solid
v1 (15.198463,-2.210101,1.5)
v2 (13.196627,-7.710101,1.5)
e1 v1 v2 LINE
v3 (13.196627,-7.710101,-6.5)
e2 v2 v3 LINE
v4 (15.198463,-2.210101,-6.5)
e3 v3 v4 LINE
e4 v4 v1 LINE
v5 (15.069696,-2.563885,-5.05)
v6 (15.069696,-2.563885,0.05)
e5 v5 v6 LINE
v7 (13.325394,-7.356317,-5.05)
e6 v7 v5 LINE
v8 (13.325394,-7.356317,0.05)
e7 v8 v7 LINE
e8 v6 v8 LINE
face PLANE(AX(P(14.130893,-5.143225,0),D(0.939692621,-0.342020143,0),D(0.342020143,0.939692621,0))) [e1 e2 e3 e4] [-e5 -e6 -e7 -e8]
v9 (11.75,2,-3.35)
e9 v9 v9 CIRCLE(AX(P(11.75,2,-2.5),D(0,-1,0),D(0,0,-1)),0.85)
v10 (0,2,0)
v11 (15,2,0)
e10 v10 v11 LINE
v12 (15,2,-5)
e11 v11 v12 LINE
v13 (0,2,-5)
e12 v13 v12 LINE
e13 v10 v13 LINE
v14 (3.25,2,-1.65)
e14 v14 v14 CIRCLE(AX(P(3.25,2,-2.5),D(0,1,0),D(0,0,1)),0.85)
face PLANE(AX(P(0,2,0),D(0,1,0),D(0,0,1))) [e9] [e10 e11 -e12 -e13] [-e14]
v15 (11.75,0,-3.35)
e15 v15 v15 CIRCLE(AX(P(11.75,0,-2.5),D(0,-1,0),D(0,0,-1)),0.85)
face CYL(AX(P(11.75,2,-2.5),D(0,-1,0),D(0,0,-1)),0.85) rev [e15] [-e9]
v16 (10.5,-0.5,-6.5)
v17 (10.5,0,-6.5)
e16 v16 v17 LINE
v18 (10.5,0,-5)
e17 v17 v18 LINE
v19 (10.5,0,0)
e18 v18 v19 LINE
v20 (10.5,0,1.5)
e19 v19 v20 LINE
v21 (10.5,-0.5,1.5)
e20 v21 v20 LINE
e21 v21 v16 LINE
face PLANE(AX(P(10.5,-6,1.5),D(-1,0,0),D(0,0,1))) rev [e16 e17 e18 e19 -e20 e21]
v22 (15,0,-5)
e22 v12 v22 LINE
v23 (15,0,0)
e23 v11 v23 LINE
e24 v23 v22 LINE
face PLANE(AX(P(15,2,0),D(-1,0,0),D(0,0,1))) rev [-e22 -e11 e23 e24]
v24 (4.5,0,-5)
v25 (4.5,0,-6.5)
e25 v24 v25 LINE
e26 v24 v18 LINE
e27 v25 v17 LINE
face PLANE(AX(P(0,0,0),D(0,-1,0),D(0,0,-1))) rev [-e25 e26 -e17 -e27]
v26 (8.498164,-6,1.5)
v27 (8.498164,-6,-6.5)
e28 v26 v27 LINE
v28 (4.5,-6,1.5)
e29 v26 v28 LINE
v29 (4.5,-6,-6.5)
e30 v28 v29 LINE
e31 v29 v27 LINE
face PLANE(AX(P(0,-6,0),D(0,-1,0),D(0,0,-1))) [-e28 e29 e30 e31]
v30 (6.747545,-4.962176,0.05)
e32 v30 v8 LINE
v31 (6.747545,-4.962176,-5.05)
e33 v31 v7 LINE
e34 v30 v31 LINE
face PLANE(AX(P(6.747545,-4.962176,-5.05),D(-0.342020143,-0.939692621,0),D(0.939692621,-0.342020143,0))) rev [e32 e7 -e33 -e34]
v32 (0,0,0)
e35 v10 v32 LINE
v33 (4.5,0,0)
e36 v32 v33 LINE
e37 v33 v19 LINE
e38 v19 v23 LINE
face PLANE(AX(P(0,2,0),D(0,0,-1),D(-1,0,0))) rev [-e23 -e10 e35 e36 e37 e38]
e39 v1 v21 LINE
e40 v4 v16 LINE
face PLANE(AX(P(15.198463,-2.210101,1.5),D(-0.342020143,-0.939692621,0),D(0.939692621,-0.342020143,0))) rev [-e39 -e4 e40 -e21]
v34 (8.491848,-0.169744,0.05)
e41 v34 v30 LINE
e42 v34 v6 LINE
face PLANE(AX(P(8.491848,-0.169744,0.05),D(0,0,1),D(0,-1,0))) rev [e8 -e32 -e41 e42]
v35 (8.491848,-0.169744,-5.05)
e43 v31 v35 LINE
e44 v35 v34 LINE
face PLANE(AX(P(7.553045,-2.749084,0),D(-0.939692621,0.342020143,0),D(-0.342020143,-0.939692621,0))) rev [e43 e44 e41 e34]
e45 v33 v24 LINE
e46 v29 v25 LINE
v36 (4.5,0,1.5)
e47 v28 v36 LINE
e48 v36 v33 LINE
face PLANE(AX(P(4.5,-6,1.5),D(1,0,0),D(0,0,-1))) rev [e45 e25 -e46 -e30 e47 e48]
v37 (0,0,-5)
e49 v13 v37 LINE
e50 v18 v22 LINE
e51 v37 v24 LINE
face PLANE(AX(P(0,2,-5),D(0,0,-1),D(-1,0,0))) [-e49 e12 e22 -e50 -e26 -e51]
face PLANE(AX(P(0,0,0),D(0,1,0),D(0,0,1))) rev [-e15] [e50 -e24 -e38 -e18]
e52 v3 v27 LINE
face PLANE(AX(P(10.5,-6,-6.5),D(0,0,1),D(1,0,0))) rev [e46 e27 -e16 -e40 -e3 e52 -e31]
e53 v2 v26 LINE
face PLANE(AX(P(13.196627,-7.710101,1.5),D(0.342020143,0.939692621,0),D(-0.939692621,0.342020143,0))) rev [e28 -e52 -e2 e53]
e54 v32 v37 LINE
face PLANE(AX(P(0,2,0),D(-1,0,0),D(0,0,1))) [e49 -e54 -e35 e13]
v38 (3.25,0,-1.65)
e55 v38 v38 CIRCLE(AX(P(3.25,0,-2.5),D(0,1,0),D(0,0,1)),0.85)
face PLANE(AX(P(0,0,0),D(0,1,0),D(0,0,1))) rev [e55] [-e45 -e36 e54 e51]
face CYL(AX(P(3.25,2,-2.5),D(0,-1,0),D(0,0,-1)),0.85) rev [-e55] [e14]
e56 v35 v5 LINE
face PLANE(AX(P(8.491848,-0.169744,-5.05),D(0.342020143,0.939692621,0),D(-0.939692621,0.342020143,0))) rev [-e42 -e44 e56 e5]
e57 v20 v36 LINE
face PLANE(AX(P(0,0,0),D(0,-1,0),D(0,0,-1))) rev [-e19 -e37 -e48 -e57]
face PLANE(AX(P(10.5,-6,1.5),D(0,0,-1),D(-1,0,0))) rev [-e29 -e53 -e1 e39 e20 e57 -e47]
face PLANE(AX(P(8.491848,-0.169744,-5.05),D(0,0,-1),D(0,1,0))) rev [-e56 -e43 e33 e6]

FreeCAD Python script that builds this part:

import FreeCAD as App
import Part
import Sketcher
Q = App.Units.Quantity


def add_polygon(sketch, points):
    """Adds a closed chain of lines whose ends are joined by coincident constraints."""
    first, n = sketch.GeometryCount, len(points)
    for a, b in zip(points, points[1:] + points[:1]):
        sketch.addGeometry(Part.LineSegment(App.Vector(*a, 0), App.Vector(*b, 0)), False)
    for i in range(n):
        sketch.addConstraint(Sketcher.Constraint("Coincident", first + i, 2, first + (i + 1) % n, 1))

doc = App.newDocument("Part")
body = doc.addObject("PartDesign::Body", "Body")

sketch1 = doc.addObject("Sketcher::SketchObject", "Sketch")
body.addObject(sketch1)
sketch1.AttachmentSupport = (doc.XZ_Plane, [""])
sketch1.MapMode = "FlatFace"
add_polygon(sketch1, [(0, -5), (0, 0), (15, 0), (15, -5)])
sketch1.addGeometry(Part.Circle(App.Vector(3.2, -2.5, 0), App.Vector(0, 0, 1), 0.8), False)
sketch1.addGeometry(Part.Circle(App.Vector(11.8, -2.5, 0), App.Vector(0, 0, 1), 0.8), False)
sketch1.addConstraint(Sketcher.Constraint("Vertical", 0))
sketch1.addConstraint(Sketcher.Constraint("Horizontal", 1))
sketch1.addConstraint(Sketcher.Constraint("Vertical", 2))
sketch1.addConstraint(Sketcher.Constraint("Horizontal", 3))
sketch1.addConstraint(Sketcher.Constraint("Coincident", 0, 2, -1, 1))
sketch1.addConstraint(Sketcher.Constraint("Equal", 4, 5))
sketch1.addConstraint(Sketcher.Constraint("Horizontal", 4, 3, 5, 3))
sketch1.addConstraint(Sketcher.Constraint("Diameter", 4, Q("1.7 mm")))
sketch1.addConstraint(Sketcher.Constraint("DistanceX", 1, 1, 1, 2, Q("15 mm")))
sketch1.addConstraint(Sketcher.Constraint("DistanceY", 0, 1, 0, 2, Q("5 mm")))
sketch1.addConstraint(Sketcher.Constraint("DistanceY", 4, 3, -1, 1, Q("2.5 mm")))
sketch1.addConstraint(Sketcher.Constraint("DistanceX", 4, 3, 5, 3, Q("8.5 mm")))
sketch1.addConstraint(Sketcher.Constraint("DistanceX", -1, 1, 4, 3, Q("3.25 mm")))
pad1 = doc.addObject("PartDesign::Pad", "Pad")
body.addObject(pad1)
pad1.Profile = sketch1
pad1.Length = 2
pad1.Reversed = True

sketch2 = doc.addObject("Sketcher::SketchObject", "Sketch001")
body.addObject(sketch2)
sketch2.AttachmentSupport = (doc.XZ_Plane, [""])
sketch2.MapMode = "FlatFace"
add_polygon(sketch2, [(4, 2), (4, -6), (10, -6), (10, 2)])
sketch2.addConstraint(Sketcher.Constraint("Vertical", 0))
sketch2.addConstraint(Sketcher.Constraint("Horizontal", 1))
sketch2.addConstraint(Sketcher.Constraint("Vertical", 2))
sketch2.addConstraint(Sketcher.Constraint("Horizontal", 3))
sketch2.addConstraint(Sketcher.Constraint("DistanceX", 1, 1, 1, 2, Q("6 mm")))
sketch2.addConstraint(Sketcher.Constraint("DistanceY", 0, 2, 0, 1, Q("8 mm")))
sketch2.addConstraint(Sketcher.Constraint("DistanceX", -1, 1, 0, 2, Q("4.5 mm")))
sketch2.addConstraint(Sketcher.Constraint("DistanceY", 0, 2, -1, 1, Q("6.5 mm")))
pad2 = doc.addObject("PartDesign::Pad", "Pad001")
body.addObject(pad2)
pad2.Profile = sketch2
pad2.Length = 6

sketch3 = doc.addObject("Sketcher::SketchObject", "Sketch002")
body.addObject(sketch3)
sketch3.AttachmentSupport = (doc.XY_Plane, [""])
sketch3.MapMode = "FlatFace"
sketch3.AttachmentOffset = App.Placement(App.Vector(0, 0, -6.5), App.Rotation())
add_polygon(sketch3, [(10.5, -0.5), (10.5, -6), (8.5, -6)])
sketch3.addConstraint(Sketcher.Constraint("Vertical", 0))
sketch3.addConstraint(Sketcher.Constraint("Horizontal", 1))
sketch3.addConstraint(Sketcher.Constraint("Angle", 2, Q("70 deg")))
sketch3.addConstraint(Sketcher.Constraint("DistanceY", 0, 2, 0, 1, Q("5.5 mm")))
sketch3.addConstraint(Sketcher.Constraint("DistanceY", 0, 2, -1, 1, Q("6 mm")))
sketch3.addConstraint(Sketcher.Constraint("DistanceX", -1, 1, 0, 2, Q("10.5 mm")))
pocket1 = doc.addObject("PartDesign::Pocket", "Pocket")
body.addObject(pocket1)
pocket1.Profile = sketch3
pocket1.Length = 8
pocket1.Reversed = True

sketch4 = doc.addObject("Sketcher::SketchObject", "Sketch003")
body.addObject(sketch4)
sketch4.Placement = App.Placement(App.Vector(9.43243, -3.433124, 0), App.Rotation(App.Vector(0, 0, -1), App.Vector(0.342020143, 0.939692621, 0), App.Vector(0.939692621, -0.342020143, 0), "ZXY"))
add_polygon(sketch4, [(0, 3), (0, -2), (5, -2), (5, 3)])
sketch4.addConstraint(Sketcher.Constraint("Vertical", 0))
sketch4.addConstraint(Sketcher.Constraint("Horizontal", 1))
sketch4.addConstraint(Sketcher.Constraint("Vertical", 2))
sketch4.addConstraint(Sketcher.Constraint("Horizontal", 3))
sketch4.addConstraint(Sketcher.Constraint("Equal", 3, 0))
sketch4.addConstraint(Sketcher.Constraint("DistanceX", 1, 1, 1, 2, Q("5.1 mm")))
sketch4.addConstraint(Sketcher.Constraint("DistanceX", 0, 2, -1, 1, Q("0.05 mm")))
sketch4.addConstraint(Sketcher.Constraint("DistanceY", 0, 2, -1, 1, Q("2.355124 mm")))
pocket2 = doc.addObject("PartDesign::Pocket", "Pocket001")
body.addObject(pocket2)
pocket2.Profile = sketch4
pocket2.Length = 2

sketch5 = doc.addObject("Sketcher::SketchObject", "Sketch004")
body.addObject(sketch5)
sketch5.Placement = App.Placement(App.Vector(9.43243, -3.433124, 0), App.Rotation(App.Vector(0, 0, -1), App.Vector(0.342020143, 0.939692621, 0), App.Vector(0.939692621, -0.342020143, 0), "ZXY"))
add_polygon(sketch5, [(-2, 3), (-2, -3), (6, -3), (6, 3)])
add_polygon(sketch5, [(5, -2), (0, -2), (0, 3), (5, 3)])
sketch5.addConstraint(Sketcher.Constraint("Vertical", 0))
sketch5.addConstraint(Sketcher.Constraint("Horizontal", 1))
sketch5.addConstraint(Sketcher.Constraint("Vertical", 2))
sketch5.addConstraint(Sketcher.Constraint("Horizontal", 3))
sketch5.addConstraint(Sketcher.Constraint("Horizontal", 4))
sketch5.addConstraint(Sketcher.Constraint("Vertical", 5))
sketch5.addConstraint(Sketcher.Constraint("Horizontal", 6))
sketch5.addConstraint(Sketcher.Constraint("Vertical", 7))
sketch5.addConstraint(Sketcher.Constraint("Equal", 6, 5))
sketch5.addConstraint(Sketcher.Constraint("DistanceX", 1, 1, 1, 2, Q("8 mm")))
sketch5.addConstraint(Sketcher.Constraint("DistanceX", 4, 2, 4, 1, Q("5.1 mm")))
sketch5.addConstraint(Sketcher.Constraint("DistanceX", 0, 2, -1, 1, Q("1.5 mm")))
sketch5.addConstraint(Sketcher.Constraint("DistanceX", 4, 2, -1, 1, Q("0.05 mm")))
sketch5.addConstraint(Sketcher.Constraint("DistanceY", 0, 2, 0, 1, Q("5.852978 mm")))
sketch5.addConstraint(Sketcher.Constraint("DistanceY", 0, 2, 4, 2, Q("0.376489 mm")))
sketch5.addConstraint(Sketcher.Constraint("DistanceY", 0, 2, -1, 1, Q("2.731613 mm")))
pad3 = doc.addObject("PartDesign::Pad", "Pad002")
body.addObject(pad3)
pad3.Profile = sketch5
pad3.Length = 5

doc.recompute()
